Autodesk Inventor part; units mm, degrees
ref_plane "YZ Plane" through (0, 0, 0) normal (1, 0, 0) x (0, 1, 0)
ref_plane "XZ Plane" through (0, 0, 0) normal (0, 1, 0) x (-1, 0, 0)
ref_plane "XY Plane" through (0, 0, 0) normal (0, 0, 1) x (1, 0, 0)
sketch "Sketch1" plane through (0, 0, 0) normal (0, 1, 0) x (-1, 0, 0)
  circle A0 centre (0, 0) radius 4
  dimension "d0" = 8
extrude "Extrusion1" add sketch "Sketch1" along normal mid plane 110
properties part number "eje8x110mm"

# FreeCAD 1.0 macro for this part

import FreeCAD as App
import Part
import Sketcher

doc = App.newDocument("Part")
params = doc.addObject("Spreadsheet::Sheet", "Params")
for row, (alias, value) in enumerate([
    ("sketch1_diameter", "8 mm"),
    ("pad1_length", "110 mm"),
], start=1):
    params.set(f"A{row}", alias)
    params.set(f"B{row}", "=" + value)
    params.setAlias(f"B{row}", alias)

body = doc.addObject("PartDesign::Body", "Body")

# Sketch on XZ plane
sketch1 = doc.addObject("Sketcher::SketchObject", "Sketch")
body.addObject(sketch1)
sketch1.AttachmentSupport = (doc.XZ_Plane, [""])
sketch1.MapMode = "FlatFace"
sketch1.addGeometry(Part.Circle(App.Vector(0, 0, 0), App.Vector(0, 0, 1), 4), False)
sketch1.addConstraint([
    Sketcher.Constraint("Coincident", 0, 3, -1, 1),
    Sketcher.Constraint("Diameter", 0, 8.0),
])
sketch1.setExpression("Constraints[1]", "Params.sketch1_diameter")
pad1 = doc.addObject("PartDesign::Pad", "Pad")
body.addObject(pad1)
pad1.Profile = sketch1
pad1.setExpression("Length", "Params.pad1_length")
pad1.Midplane = True

doc.recompute()
